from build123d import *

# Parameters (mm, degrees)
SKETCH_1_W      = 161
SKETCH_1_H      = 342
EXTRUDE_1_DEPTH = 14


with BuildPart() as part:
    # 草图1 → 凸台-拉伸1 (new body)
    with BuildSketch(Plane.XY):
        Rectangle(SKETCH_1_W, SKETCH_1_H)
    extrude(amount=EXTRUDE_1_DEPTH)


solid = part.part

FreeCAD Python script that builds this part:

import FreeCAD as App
import Part
import Sketcher

V = App.Vector
Q = App.Units.Quantity


def add_polygon(sketch, points):
    """Adds a closed chain of lines whose ends are joined by coincident constraints."""
    first, n = sketch.GeometryCount, len(points)
    for a, b in zip(points, points[1:] + points[:1]):
        sketch.addGeometry(Part.LineSegment(App.Vector(*a, 0), App.Vector(*b, 0)), False)
    for i in range(n):
        sketch.addConstraint(Sketcher.Constraint("Coincident", first + i, 2, first + (i + 1) % n, 1))

doc = App.newDocument("Part")
body = doc.addObject("PartDesign::Body", "Body")

sketch1 = body.newObject("Sketcher::SketchObject", "Sketch")
sketch1.AttachmentSupport = (doc.getObject("XY_Plane"), [""])
sketch1.MapMode = "FlatFace"
add_polygon(sketch1, [(-80, 171), (-80, -171), (80, -171), (80, 171)])
sketch1.addConstraint([
    Sketcher.Constraint("Vertical", 0),
    Sketcher.Constraint("Horizontal", 1),
    Sketcher.Constraint("Vertical", 2),
    Sketcher.Constraint("Horizontal", 3),
    Sketcher.Constraint("Symmetric", 0, 2, 2, 2, -1, 1),
    Sketcher.Constraint("DistanceX", 1, 1, 1, 2, Q("161 mm")),
    Sketcher.Constraint("DistanceY", 0, 2, 0, 1, Q("342 mm")),
])
pad1 = body.newObject("PartDesign::Pad", "Pad")
pad1.Profile = sketch1
pad1.Length = 14

doc.recompute()
